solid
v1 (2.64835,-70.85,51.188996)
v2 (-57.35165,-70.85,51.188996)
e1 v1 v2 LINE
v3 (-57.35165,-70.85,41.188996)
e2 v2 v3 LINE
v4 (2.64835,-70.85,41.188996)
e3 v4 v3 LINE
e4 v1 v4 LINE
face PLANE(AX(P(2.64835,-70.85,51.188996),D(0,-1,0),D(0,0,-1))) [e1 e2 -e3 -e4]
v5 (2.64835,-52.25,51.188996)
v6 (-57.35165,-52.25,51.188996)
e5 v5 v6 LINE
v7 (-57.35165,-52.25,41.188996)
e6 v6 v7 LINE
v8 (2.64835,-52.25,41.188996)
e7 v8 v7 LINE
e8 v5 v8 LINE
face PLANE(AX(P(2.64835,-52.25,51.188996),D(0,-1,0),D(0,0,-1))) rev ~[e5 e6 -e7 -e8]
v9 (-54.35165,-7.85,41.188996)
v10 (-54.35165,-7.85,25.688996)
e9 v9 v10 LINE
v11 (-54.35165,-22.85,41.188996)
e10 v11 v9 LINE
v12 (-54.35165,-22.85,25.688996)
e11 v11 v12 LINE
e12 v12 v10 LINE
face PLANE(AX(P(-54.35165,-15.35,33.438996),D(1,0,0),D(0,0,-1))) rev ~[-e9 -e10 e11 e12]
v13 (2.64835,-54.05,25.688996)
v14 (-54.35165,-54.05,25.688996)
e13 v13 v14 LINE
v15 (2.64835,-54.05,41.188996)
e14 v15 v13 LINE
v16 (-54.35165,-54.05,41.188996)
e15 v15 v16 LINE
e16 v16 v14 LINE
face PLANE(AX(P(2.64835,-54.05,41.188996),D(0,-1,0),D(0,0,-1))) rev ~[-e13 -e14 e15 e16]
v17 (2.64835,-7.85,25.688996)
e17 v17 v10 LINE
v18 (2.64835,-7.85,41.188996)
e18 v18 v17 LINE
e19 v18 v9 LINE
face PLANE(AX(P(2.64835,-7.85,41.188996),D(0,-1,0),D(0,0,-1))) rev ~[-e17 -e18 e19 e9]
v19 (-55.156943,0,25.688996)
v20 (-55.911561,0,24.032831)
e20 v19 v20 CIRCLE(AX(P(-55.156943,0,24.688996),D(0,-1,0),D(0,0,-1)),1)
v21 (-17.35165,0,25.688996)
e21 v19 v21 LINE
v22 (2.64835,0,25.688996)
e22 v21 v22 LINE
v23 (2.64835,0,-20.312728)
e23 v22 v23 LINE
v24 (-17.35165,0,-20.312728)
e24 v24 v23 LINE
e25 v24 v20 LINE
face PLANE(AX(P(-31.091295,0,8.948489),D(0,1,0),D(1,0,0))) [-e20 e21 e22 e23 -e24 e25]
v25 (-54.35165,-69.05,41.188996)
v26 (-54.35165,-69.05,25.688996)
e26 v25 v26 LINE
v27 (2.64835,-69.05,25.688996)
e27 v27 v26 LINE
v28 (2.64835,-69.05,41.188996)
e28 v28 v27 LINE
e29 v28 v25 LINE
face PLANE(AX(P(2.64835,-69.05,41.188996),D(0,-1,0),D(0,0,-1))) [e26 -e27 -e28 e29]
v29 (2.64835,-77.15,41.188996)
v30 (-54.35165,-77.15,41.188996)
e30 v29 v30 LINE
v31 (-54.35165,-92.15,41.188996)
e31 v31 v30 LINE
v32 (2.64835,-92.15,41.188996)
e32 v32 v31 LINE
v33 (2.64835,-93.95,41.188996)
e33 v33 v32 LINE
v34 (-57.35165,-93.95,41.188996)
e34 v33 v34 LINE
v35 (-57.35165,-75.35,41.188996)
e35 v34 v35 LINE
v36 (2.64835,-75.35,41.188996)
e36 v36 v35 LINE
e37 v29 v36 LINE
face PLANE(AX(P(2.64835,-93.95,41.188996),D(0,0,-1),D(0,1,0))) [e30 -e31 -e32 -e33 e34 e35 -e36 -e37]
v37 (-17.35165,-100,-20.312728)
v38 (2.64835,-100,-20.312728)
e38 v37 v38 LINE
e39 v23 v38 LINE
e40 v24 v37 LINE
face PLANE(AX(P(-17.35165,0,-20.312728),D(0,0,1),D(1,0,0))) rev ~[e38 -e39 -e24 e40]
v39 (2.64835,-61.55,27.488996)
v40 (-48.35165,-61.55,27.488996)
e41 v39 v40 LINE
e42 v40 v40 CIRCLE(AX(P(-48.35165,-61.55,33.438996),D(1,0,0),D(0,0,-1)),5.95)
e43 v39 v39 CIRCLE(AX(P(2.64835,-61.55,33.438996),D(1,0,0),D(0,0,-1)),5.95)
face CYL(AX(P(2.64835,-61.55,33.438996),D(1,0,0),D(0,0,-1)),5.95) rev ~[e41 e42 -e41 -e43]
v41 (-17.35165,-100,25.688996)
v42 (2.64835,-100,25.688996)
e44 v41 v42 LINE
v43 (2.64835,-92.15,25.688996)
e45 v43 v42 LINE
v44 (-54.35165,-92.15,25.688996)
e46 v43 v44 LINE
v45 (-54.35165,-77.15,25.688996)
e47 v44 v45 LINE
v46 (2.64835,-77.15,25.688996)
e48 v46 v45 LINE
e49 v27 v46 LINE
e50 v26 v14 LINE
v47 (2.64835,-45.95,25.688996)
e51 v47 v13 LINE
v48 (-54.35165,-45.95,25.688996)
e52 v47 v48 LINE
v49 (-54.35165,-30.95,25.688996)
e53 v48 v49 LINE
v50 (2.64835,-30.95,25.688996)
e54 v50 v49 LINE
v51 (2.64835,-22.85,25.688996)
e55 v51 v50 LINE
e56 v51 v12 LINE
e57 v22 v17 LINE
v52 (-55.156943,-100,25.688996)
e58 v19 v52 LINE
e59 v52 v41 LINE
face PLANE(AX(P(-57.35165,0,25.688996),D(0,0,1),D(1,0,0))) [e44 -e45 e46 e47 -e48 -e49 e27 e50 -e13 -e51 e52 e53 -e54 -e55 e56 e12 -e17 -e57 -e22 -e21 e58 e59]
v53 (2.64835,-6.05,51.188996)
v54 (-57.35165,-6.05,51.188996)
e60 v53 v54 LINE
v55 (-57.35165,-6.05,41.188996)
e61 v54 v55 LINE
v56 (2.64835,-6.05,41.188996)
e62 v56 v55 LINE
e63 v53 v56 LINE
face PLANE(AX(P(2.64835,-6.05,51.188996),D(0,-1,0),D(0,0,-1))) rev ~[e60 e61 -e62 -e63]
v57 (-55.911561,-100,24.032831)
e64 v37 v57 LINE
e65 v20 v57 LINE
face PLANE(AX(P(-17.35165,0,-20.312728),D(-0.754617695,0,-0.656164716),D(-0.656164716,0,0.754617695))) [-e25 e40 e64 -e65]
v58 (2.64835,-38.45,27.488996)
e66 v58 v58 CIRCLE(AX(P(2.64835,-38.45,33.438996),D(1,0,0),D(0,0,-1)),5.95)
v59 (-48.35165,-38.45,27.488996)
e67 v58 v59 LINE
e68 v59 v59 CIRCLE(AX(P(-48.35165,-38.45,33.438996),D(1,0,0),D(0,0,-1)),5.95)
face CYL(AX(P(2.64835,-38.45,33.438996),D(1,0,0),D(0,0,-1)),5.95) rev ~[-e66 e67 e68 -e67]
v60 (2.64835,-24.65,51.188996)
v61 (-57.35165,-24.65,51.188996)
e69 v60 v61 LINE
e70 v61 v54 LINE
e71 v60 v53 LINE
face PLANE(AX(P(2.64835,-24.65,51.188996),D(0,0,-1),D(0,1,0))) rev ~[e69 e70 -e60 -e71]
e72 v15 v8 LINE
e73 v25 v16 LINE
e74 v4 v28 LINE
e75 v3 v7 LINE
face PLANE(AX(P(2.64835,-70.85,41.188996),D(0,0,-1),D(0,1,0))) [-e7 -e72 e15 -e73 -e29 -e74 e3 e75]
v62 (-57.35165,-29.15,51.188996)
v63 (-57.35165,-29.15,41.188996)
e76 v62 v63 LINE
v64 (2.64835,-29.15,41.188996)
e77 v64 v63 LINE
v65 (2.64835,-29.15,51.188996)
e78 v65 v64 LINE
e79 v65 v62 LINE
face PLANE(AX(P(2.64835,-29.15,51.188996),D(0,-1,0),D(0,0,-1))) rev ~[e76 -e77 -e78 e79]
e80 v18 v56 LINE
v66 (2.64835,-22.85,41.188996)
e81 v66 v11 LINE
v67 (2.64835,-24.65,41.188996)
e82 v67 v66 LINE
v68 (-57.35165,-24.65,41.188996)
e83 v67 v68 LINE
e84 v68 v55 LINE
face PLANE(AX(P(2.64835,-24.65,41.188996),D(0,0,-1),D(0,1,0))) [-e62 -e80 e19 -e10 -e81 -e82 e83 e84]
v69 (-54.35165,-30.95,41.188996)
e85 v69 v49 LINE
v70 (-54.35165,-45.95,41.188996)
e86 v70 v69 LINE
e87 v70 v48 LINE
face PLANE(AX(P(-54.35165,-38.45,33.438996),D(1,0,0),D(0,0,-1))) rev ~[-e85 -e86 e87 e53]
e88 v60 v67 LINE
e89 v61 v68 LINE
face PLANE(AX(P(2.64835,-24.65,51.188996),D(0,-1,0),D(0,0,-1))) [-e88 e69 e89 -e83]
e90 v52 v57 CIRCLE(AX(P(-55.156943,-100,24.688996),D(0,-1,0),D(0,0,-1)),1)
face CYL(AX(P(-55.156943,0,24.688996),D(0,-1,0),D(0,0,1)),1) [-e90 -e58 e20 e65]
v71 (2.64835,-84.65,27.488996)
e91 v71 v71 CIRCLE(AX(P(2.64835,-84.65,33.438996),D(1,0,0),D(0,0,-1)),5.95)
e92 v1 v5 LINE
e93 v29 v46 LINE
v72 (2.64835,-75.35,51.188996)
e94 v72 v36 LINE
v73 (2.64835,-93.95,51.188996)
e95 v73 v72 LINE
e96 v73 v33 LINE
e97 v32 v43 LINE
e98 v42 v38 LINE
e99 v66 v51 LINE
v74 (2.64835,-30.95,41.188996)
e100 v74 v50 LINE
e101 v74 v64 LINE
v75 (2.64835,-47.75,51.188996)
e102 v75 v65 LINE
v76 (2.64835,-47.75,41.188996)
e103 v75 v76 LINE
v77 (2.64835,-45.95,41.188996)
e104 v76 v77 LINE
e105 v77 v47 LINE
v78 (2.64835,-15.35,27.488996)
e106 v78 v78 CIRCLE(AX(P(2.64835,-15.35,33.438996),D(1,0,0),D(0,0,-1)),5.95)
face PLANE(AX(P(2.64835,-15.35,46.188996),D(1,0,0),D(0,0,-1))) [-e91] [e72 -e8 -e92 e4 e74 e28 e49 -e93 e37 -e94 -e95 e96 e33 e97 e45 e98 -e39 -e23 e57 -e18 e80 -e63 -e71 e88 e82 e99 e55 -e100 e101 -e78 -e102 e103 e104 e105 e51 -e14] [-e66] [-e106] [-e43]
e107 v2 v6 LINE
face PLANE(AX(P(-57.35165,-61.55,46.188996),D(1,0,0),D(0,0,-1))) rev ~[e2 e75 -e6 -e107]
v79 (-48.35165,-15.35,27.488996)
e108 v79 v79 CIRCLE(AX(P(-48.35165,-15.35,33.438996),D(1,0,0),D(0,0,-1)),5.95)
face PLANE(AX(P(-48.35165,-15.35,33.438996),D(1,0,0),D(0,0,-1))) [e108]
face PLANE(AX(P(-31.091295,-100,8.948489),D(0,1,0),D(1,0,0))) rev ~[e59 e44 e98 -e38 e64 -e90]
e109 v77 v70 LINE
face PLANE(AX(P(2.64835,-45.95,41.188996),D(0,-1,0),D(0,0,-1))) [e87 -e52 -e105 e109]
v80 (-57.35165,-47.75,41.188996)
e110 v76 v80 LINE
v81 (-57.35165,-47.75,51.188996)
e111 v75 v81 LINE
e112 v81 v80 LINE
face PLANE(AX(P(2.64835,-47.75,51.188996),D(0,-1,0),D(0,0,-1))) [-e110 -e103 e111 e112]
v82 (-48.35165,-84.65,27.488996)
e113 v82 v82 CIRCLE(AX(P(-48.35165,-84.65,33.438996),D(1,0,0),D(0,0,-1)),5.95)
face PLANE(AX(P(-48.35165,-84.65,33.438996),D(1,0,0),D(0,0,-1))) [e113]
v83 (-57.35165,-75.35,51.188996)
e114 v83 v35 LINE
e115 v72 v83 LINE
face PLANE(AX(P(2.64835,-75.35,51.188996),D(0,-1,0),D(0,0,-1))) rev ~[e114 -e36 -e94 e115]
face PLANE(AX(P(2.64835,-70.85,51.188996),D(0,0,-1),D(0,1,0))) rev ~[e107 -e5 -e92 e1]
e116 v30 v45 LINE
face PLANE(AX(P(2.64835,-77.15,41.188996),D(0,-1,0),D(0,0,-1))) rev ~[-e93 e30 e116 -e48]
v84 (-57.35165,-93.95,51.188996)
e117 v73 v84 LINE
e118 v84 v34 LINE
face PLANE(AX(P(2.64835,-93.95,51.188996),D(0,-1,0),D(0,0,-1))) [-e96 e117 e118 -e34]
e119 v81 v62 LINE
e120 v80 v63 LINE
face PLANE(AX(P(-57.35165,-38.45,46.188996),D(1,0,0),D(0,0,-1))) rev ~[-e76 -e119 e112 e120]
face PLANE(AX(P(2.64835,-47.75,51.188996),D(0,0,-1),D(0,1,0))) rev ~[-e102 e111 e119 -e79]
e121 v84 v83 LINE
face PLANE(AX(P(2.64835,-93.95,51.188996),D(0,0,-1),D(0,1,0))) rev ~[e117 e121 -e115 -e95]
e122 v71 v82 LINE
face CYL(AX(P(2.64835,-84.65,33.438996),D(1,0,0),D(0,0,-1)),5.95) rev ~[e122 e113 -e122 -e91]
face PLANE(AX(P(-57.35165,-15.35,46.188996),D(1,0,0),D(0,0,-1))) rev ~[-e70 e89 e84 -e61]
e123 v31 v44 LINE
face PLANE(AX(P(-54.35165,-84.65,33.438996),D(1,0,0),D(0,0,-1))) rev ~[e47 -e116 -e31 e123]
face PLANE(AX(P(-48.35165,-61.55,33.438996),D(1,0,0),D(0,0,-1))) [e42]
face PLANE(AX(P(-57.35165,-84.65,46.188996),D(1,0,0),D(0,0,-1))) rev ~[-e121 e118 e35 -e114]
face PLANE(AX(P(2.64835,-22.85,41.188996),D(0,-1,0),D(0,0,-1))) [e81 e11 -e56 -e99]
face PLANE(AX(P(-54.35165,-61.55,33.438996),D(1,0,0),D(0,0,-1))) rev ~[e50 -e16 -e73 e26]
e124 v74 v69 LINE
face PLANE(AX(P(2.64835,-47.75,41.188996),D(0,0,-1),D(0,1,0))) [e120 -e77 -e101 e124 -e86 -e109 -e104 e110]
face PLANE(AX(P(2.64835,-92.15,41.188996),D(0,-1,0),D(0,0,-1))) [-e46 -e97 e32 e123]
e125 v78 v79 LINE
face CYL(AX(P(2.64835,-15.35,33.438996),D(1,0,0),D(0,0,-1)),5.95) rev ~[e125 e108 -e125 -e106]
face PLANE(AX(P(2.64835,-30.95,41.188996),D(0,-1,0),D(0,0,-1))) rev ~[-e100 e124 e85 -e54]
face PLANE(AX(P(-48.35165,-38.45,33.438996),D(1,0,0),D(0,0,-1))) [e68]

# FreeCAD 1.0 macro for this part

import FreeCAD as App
import Part
import Sketcher
Q = App.Units.Quantity


def edges_at(feature, points):
    """Names of the edges that pass closest to the given points."""
    edges = feature.Shape.Edges
    near = lambda p: min(range(len(edges)), key=lambda i: edges[i].distToShape(Part.Vertex(*p))[0])
    return sorted({f"Edge{near(p) + 1}" for p in points})


def add_polygon(sketch, points):
    """Adds a closed chain of lines whose ends are joined by coincident constraints."""
    first, n = sketch.GeometryCount, len(points)
    for a, b in zip(points, points[1:] + points[:1]):
        sketch.addGeometry(Part.LineSegment(App.Vector(*a, 0), App.Vector(*b, 0)), False)
    for i in range(n):
        sketch.addConstraint(Sketcher.Constraint("Coincident", first + i, 2, first + (i + 1) % n, 1))

doc = App.newDocument("Part")
body = doc.addObject("PartDesign::Body", "Body")

# Sketch on XZ plane
sketch1 = doc.addObject("Sketcher::SketchObject", "Sketch")
body.addObject(sketch1)
sketch1.AttachmentSupport = (doc.XZ_Plane, [""])
sketch1.MapMode = "FlatFace"
add_polygon(sketch1, [(-17, -20), (-57, 26), (-17, 26), (3, 26), (3, -20)])  # lines 0-4
sketch1.addConstraint(Sketcher.Constraint("Horizontal", 1))
sketch1.addConstraint(Sketcher.Constraint("Horizontal", 2))
sketch1.addConstraint(Sketcher.Constraint("Vertical", 3))
sketch1.addConstraint(Sketcher.Constraint("Horizontal", 4))
sketch1.addConstraint(Sketcher.Constraint("Vertical", 1, 2, 4, 2))
sketch1.addConstraint(Sketcher.Constraint("DistanceX", 1, 1, 1, 2, Q("40 mm")))
sketch1.addConstraint(Sketcher.Constraint("DistanceX", 2, 1, 2, 2, Q("20 mm")))
sketch1.addConstraint(Sketcher.Constraint("DistanceY", 3, 2, 3, 1, Q("46.001723 mm")))
sketch1.addConstraint(Sketcher.Constraint("DistanceX", 0, 2, -1, 1, Q("57.35165 mm")))
sketch1.addConstraint(Sketcher.Constraint("DistanceY", -1, 1, 0, 2, Q("25.688996 mm")))
pad1 = doc.addObject("PartDesign::Pad", "Pad")
body.addObject(pad1)
pad1.Profile = sketch1
pad1.Length = 100

# Sketch on YZ plane
sketch2 = doc.addObject("Sketcher::SketchObject", "Sketch001")
body.addObject(sketch2)
sketch2.AttachmentSupport = (doc.YZ_Plane, [""])
sketch2.MapMode = "FlatFace"
sketch2.AttachmentOffset = App.Placement(App.Vector(0, 0, 2.64835), App.Rotation())
add_polygon(sketch2, [(-8, 41), (-23, 41), (-23, 26), (-8, 26)])  # lines 0-3
add_polygon(sketch2, [(-31, 41), (-46, 41), (-46, 26), (-31, 26)])  # lines 4-7
add_polygon(sketch2, [(-54, 41), (-69, 41), (-69, 26), (-54, 26)])  # lines 8-11
add_polygon(sketch2, [(-77, 41), (-92, 41), (-92, 26), (-77, 26)])  # lines 12-15
sketch2.addConstraint(Sketcher.Constraint("Horizontal", 0))
sketch2.addConstraint(Sketcher.Constraint("Vertical", 1))
sketch2.addConstraint(Sketcher.Constraint("Horizontal", 2))
sketch2.addConstraint(Sketcher.Constraint("Vertical", 3))
sketch2.addConstraint(Sketcher.Constraint("Horizontal", 4))
sketch2.addConstraint(Sketcher.Constraint("Vertical", 5))
sketch2.addConstraint(Sketcher.Constraint("Horizontal", 6))
sketch2.addConstraint(Sketcher.Constraint("Vertical", 7))
sketch2.addConstraint(Sketcher.Constraint("Horizontal", 8))
sketch2.addConstraint(Sketcher.Constraint("Vertical", 9))
sketch2.addConstraint(Sketcher.Constraint("Horizontal", 10))
sketch2.addConstraint(Sketcher.Constraint("Vertical", 11))
sketch2.addConstraint(Sketcher.Constraint("Horizontal", 12))
sketch2.addConstraint(Sketcher.Constraint("Vertical", 13))
sketch2.addConstraint(Sketcher.Constraint("Horizontal", 14))
sketch2.addConstraint(Sketcher.Constraint("Vertical", 15))
sketch2.addConstraint(Sketcher.Constraint("Horizontal", 3, 2, 4, 2))
sketch2.addConstraint(Sketcher.Constraint("Horizontal", 2, 2, 5, 2))
sketch2.addConstraint(Sketcher.Constraint("Horizontal", 7, 2, 8, 2))
sketch2.addConstraint(Sketcher.Constraint("Horizontal", 6, 2, 9, 2))
sketch2.addConstraint(Sketcher.Constraint("Horizontal", 11, 2, 12, 2))
sketch2.addConstraint(Sketcher.Constraint("Horizontal", 10, 2, 13, 2))
sketch2.addConstraint(Sketcher.Constraint("Equal", 2, 4))
sketch2.addConstraint(Sketcher.Constraint("Equal", 6, 8))
sketch2.addConstraint(Sketcher.Constraint("Equal", 10, 12))
sketch2.addConstraint(Sketcher.Constraint("DistanceX", 0, 2, 0, 1, Q("15 mm")))
sketch2.addConstraint(Sketcher.Constraint("DistanceY", 1, 2, 1, 1, Q("15.5 mm")))
sketch2.addConstraint(Sketcher.Constraint("DistanceX", 4, 2, 0, 2, Q("23.1 mm")))
sketch2.addConstraint(Sketcher.Constraint("DistanceX", 8, 2, 4, 2, Q("23.1 mm")))
sketch2.addConstraint(Sketcher.Constraint("DistanceX", 12, 2, 8, 2, Q("23.1 mm")))
sketch2.addConstraint(Sketcher.Constraint("DistanceX", 0, 2, -1, 1, Q("22.85 mm")))
sketch2.addConstraint(Sketcher.Constraint("DistanceY", -1, 1, 0, 2, Q("41.188996 mm")))
pad2 = doc.addObject("PartDesign::Pad", "Pad001")
body.addObject(pad2)
pad2.Profile = sketch2
pad2.Length = 57
pad2.Reversed = True

# Sketch on YZ plane
sketch3 = doc.addObject("Sketcher::SketchObject", "Sketch002")
body.addObject(sketch3)
sketch3.AttachmentSupport = (doc.YZ_Plane, [""])
sketch3.MapMode = "FlatFace"
sketch3.AttachmentOffset = App.Placement(App.Vector(0, 0, 2.64835), App.Rotation())
sketch3.addGeometry(Part.Circle(App.Vector(-15, 33, 0), App.Vector(0, 0, 1), 6), False)
sketch3.addGeometry(Part.Circle(App.Vector(-38, 33, 0), App.Vector(0, 0, 1), 6), False)
sketch3.addGeometry(Part.Circle(App.Vector(-62, 33, 0), App.Vector(0, 0, 1), 6), False)
sketch3.addGeometry(Part.Circle(App.Vector(-85, 33, 0), App.Vector(0, 0, 1), 6), False)
sketch3.addConstraint(Sketcher.Constraint("Equal", 0, 1))
sketch3.addConstraint(Sketcher.Constraint("Equal", 1, 2))
sketch3.addConstraint(Sketcher.Constraint("Equal", 2, 3))
sketch3.addConstraint(Sketcher.Constraint("Horizontal", 0, 3, 1, 3))
sketch3.addConstraint(Sketcher.Constraint("Horizontal", 1, 3, 2, 3))
sketch3.addConstraint(Sketcher.Constraint("Horizontal", 2, 3, 3, 3))
sketch3.addConstraint(Sketcher.Constraint("Diameter", 0, Q("11.9 mm")))
sketch3.addConstraint(Sketcher.Constraint("DistanceX", 1, 3, 0, 3, Q("23.1 mm")))
sketch3.addConstraint(Sketcher.Constraint("DistanceX", 2, 3, 1, 3, Q("23.1 mm")))
sketch3.addConstraint(Sketcher.Constraint("DistanceX", 3, 3, 2, 3, Q("23.1 mm")))
sketch3.addConstraint(Sketcher.Constraint("DistanceX", 0, 3, -1, 1, Q("15.35 mm")))
sketch3.addConstraint(Sketcher.Constraint("DistanceY", -1, 1, 0, 3, Q("33.438996 mm")))
pocket1 = doc.addObject("PartDesign::Pocket", "Pocket")
body.addObject(pocket1)
pocket1.Profile = sketch3
pocket1.Length = 51

# Sketch on YZ plane
sketch4 = doc.addObject("Sketcher::SketchObject", "Sketch003")
body.addObject(sketch4)
sketch4.AttachmentSupport = (doc.YZ_Plane, [""])
sketch4.MapMode = "FlatFace"
sketch4.AttachmentOffset = App.Placement(App.Vector(0, 0, 2.64835), App.Rotation())
add_polygon(sketch4, [(-6, 51), (-25, 51), (-25, 41), (-6, 41)])  # lines 0-3
add_polygon(sketch4, [(-29, 51), (-48, 51), (-48, 41), (-29, 41)])  # lines 4-7
add_polygon(sketch4, [(-75, 51), (-94, 51), (-94, 41), (-75, 41)])  # lines 8-11
add_polygon(sketch4, [(-52, 51), (-71, 51), (-71, 41), (-52, 41)])  # lines 12-15
sketch4.addConstraint(Sketcher.Constraint("Horizontal", 0))
sketch4.addConstraint(Sketcher.Constraint("Vertical", 1))
sketch4.addConstraint(Sketcher.Constraint("Horizontal", 2))
sketch4.addConstraint(Sketcher.Constraint("Vertical", 3))
sketch4.addConstraint(Sketcher.Constraint("Horizontal", 4))
sketch4.addConstraint(Sketcher.Constraint("Vertical", 5))
sketch4.addConstraint(Sketcher.Constraint("Horizontal", 6))
sketch4.addConstraint(Sketcher.Constraint("Vertical", 7))
sketch4.addConstraint(Sketcher.Constraint("Horizontal", 8))
sketch4.addConstraint(Sketcher.Constraint("Vertical", 9))
sketch4.addConstraint(Sketcher.Constraint("Horizontal", 10))
sketch4.addConstraint(Sketcher.Constraint("Vertical", 11))
sketch4.addConstraint(Sketcher.Constraint("Horizontal", 12))
sketch4.addConstraint(Sketcher.Constraint("Vertical", 13))
sketch4.addConstraint(Sketcher.Constraint("Horizontal", 14))
sketch4.addConstraint(Sketcher.Constraint("Vertical", 15))
sketch4.addConstraint(Sketcher.Constraint("Horizontal", 3, 2, 4, 2))
sketch4.addConstraint(Sketcher.Constraint("Horizontal", 2, 2, 5, 2))
sketch4.addConstraint(Sketcher.Constraint("Horizontal", 7, 2, 8, 2))
sketch4.addConstraint(Sketcher.Constraint("Horizontal", 6, 2, 9, 2))
sketch4.addConstraint(Sketcher.Constraint("Horizontal", 11, 2, 12, 2))
sketch4.addConstraint(Sketcher.Constraint("Horizontal", 10, 2, 13, 2))
sketch4.addConstraint(Sketcher.Constraint("Equal", 2, 4))
sketch4.addConstraint(Sketcher.Constraint("Equal", 6, 8))
sketch4.addConstraint(Sketcher.Constraint("Equal", 10, 12))
sketch4.addConstraint(Sketcher.Constraint("DistanceY", 1, 2, 1, 1, Q("10 mm")))
sketch4.addConstraint(Sketcher.Constraint("DistanceX", 0, 2, 0, 1, Q("18.6 mm")))
sketch4.addConstraint(Sketcher.Constraint("DistanceX", 4, 2, 0, 2, Q("23.1 mm")))
sketch4.addConstraint(Sketcher.Constraint("DistanceX", 8, 2, 4, 2, Q("46.2 mm")))
sketch4.addConstraint(Sketcher.Constraint("DistanceX", 11, 2, 12, 2, Q("4.5 mm")))
sketch4.addConstraint(Sketcher.Constraint("DistanceX", 0, 2, -1, 1, Q("24.65 mm")))
sketch4.addConstraint(Sketcher.Constraint("DistanceY", -1, 1, 0, 2, Q("51.188996 mm")))
pad3 = doc.addObject("PartDesign::Pad", "Pad002")
body.addObject(pad3)
pad3.Profile = sketch4
pad3.Length = 60
pad3.Reversed = True
doc.recompute()

fillet = doc.addObject("PartDesign::Fillet", "Fillet")
body.addObject(fillet)
fillet.Base = (pad3, edges_at(pad3, [(-57.352, -50, 25.689)]))
fillet.Radius = 1

doc.recompute()
